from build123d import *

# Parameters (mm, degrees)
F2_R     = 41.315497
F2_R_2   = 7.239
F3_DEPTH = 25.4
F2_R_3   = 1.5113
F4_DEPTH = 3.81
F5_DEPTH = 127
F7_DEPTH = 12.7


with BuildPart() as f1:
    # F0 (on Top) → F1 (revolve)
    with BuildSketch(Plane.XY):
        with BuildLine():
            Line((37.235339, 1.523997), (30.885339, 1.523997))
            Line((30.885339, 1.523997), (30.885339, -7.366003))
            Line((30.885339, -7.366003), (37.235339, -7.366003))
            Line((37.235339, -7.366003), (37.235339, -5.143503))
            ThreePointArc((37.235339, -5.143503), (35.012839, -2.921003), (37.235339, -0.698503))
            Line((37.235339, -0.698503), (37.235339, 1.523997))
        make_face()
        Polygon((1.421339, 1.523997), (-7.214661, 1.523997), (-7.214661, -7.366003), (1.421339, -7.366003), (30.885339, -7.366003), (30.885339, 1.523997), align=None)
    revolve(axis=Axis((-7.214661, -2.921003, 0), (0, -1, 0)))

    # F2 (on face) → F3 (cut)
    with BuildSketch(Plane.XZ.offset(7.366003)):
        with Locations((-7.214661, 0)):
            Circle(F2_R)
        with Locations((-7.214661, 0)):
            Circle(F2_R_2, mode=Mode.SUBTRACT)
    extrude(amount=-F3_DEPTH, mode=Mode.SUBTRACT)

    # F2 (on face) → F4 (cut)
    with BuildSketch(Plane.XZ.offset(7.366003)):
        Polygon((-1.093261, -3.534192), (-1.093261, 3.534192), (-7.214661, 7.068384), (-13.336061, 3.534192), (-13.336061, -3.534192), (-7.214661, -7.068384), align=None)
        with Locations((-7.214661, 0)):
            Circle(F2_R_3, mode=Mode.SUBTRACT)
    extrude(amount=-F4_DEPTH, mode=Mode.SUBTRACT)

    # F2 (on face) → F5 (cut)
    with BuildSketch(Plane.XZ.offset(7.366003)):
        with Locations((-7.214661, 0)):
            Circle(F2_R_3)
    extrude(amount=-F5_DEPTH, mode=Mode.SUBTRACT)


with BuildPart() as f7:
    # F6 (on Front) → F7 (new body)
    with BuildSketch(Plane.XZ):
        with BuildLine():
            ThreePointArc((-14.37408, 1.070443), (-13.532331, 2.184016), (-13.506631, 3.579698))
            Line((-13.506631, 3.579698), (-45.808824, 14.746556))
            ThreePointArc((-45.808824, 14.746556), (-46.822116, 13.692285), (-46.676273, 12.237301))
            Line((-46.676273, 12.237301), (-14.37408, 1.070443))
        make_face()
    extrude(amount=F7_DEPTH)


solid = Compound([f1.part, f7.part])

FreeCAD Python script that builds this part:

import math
import FreeCAD as App
import Part
import Sketcher
from FreeCAD import Vector
Q = App.Units.Quantity


def add_polygon(sketch, points):
    """Adds a closed chain of lines whose ends are joined by coincident constraints."""
    first, n = sketch.GeometryCount, len(points)
    for a, b in zip(points, points[1:] + points[:1]):
        sketch.addGeometry(Part.LineSegment(App.Vector(*a, 0), App.Vector(*b, 0)), False)
    for i in range(n):
        sketch.addConstraint(Sketcher.Constraint("Coincident", first + i, 2, first + (i + 1) % n, 1))

doc = App.newDocument("Part")
body = doc.addObject("PartDesign::Body", "Body")
body.AllowCompound = True

# Sketch on XY plane
sketch1 = body.newObject("Sketcher::SketchObject", "Sketch")
sketch1.AttachmentSupport = (doc.getObject("XY_Plane"), [""])
sketch1.MapMode = "FlatFace"
sketch1.addGeometry([
    Part.LineSegment(Vector(37.2, 1.5, 0), Vector(-7.2, 1.5, 0)),  # 0
    Part.LineSegment(Vector(-7.2, 1.5, 0), Vector(-7.2, -7.4, 0)),  # 1
    Part.LineSegment(Vector(-7.2, -7.4, 0), Vector(37.2, -7.4, 0)),  # 2
    Part.LineSegment(Vector(37.2, -7.4, 0), Vector(37.2, -5.1, 0)),  # 3
    Part.ArcOfCircle(Part.Circle(Vector(37.2, -2.9, 0), Vector(0, 0, 1), 2.2), math.radians(90), math.radians(270)),  # 4
    Part.LineSegment(Vector(37.2, -0.7, 0), Vector(37.2, 1.5, 0)),  # 5
], False)
sketch1.addGeometry(Part.LineSegment(Vector(-7.2, 1.5, 0), Vector(-7.2, -7.4, 0)), True)  # axis
sketch1.addConstraint([
    Sketcher.Constraint("Coincident", 0, 2, 1, 1),
    Sketcher.Constraint("Coincident", 1, 2, 2, 1),
    Sketcher.Constraint("Coincident", 2, 2, 3, 1),
    Sketcher.Constraint("Coincident", 3, 2, 4, 2),
    Sketcher.Constraint("Coincident", 4, 1, 5, 1),
    Sketcher.Constraint("Coincident", 5, 2, 0, 1),
    Sketcher.Constraint("Horizontal", 0),
    Sketcher.Constraint("Vertical", 1),
    Sketcher.Constraint("Horizontal", 2),
    Sketcher.Constraint("Vertical", 3),
    Sketcher.Constraint("Vertical", 5),
    Sketcher.Constraint("Vertical", 6),
    Sketcher.Constraint("Coincident", 6, 1, 0, 2),
    Sketcher.Constraint("Horizontal", 2, 2, 6, 2),
    Sketcher.Constraint("Vertical", 4, 3, 2, 2),
    Sketcher.Constraint("Vertical", 3, 2, 4, 1),
    Sketcher.Constraint("Equal", 3, 5),
    Sketcher.Constraint("DistanceX", 0, 2, 0, 1, Q("1.75 in")),
    Sketcher.Constraint("DistanceY", 1, 2, 1, 1, Q("0.35 in")),
    Sketcher.Constraint("Radius", 4, Q("0.0875 in")),
    Sketcher.Constraint("DistanceY", -1, 1, 0, 2, Q("0.0599999 in")),
    Sketcher.Constraint("DistanceX", -1, 1, 4, 3, Q("37.235339 mm")),
])
revolution = body.newObject("PartDesign::Revolution", "Revolution")
revolution.Profile = sketch1
revolution.ReferenceAxis = (sketch1, ["Axis0"])
revolution.Angle = 360

# Sketch on XZ plane
sketch2 = body.newObject("Sketcher::SketchObject", "Sketch001")
sketch2.AttachmentSupport = (doc.getObject("XZ_Plane"), [""])
sketch2.MapMode = "FlatFace"
sketch2.AttachmentOffset = App.Placement(Vector(0, 0, 0.2900001 * 25.4), App.Rotation())
sketch2.addGeometry([
    Part.Circle(Vector(-7, 0, 0), Vector(0, 0, 1), 41),
    Part.Circle(Vector(-7, 0, 0), Vector(0, 0, 1), 7),
], False)
sketch2.addConstraint([
    Sketcher.Constraint("Coincident", 1, 3, 0, 3),
    Sketcher.Constraint("PointOnObject", 0, 3, -1),
    Sketcher.Constraint("Diameter", 1, Q("0.57 in")),
    Sketcher.Constraint("Diameter", 0, Q("82.630994 mm")),
    Sketcher.Constraint("DistanceX", 0, 3, -1, 1, Q("7.214661 mm")),
])
pocket1 = body.newObject("PartDesign::Pocket", "Pocket")
pocket1.Profile = sketch2
pocket1.Length = Q("1 in")

# Sketch on XZ plane
sketch3 = body.newObject("Sketcher::SketchObject", "Sketch002")
sketch3.AttachmentSupport = (doc.getObject("XZ_Plane"), [""])
sketch3.MapMode = "FlatFace"
sketch3.AttachmentOffset = App.Placement(Vector(0, 0, 0.2900001 * 25.4), App.Rotation())
add_polygon(sketch3, [(-1.1, -3.5), (-1.1, 3.5), (-7.2, 7.1), (-13.3, 3.5), (-13.3, -3.5), (-7.2, -7.1)])  # lines 0-5
sketch3.addGeometry(Part.Circle(Vector(-7.2, 0, 0), Vector(0, 0, 1), 1.5), False)  # 6
sketch3.addConstraint([
    Sketcher.Constraint("Vertical", 0),
    Sketcher.Constraint("Vertical", 3),
    Sketcher.Constraint("Symmetric", 1, 2, 4, 2, -1),
    Sketcher.Constraint("PointOnObject", 6, 3, -1),
    Sketcher.Constraint("Parallel", 1, 4),
    Sketcher.Constraint("Parallel", 2, 5),
    Sketcher.Constraint("Horizontal", 0, 2, 2, 2),
    Sketcher.Constraint("Horizontal", 3, 2, 5, 2),
    Sketcher.Constraint("Vertical", 6, 3, 1, 2),
    Sketcher.Constraint("Diameter", 6, Q("0.119 in")),
    Sketcher.Constraint("Angle", 1, Q("150 deg")),
    Sketcher.Constraint("DistanceX", 6, 3, 0, 2, Q("0.241 in")),
    Sketcher.Constraint("DistanceY", 0, 1, 0, 2, Q("7.068384 mm")),
    Sketcher.Constraint("DistanceX", 6, 3, -1, 1, Q("7.214661 mm")),
])
pocket2 = body.newObject("PartDesign::Pocket", "Pocket001")
pocket2.Profile = sketch3
pocket2.Length = Q("0.15 in")

# Sketch on XZ plane
sketch4 = body.newObject("Sketcher::SketchObject", "Sketch003")
sketch4.AttachmentSupport = (doc.getObject("XZ_Plane"), [""])
sketch4.MapMode = "FlatFace"
sketch4.AttachmentOffset = App.Placement(Vector(0, 0, 0.2900001 * 25.4), App.Rotation())
sketch4.addGeometry(Part.Circle(Vector(-7.2, 0, 0), Vector(0, 0, 1), 1.5), False)
sketch4.addConstraint([
    Sketcher.Constraint("PointOnObject", 0, 3, -1),
    Sketcher.Constraint("Diameter", 0, Q("0.119 in")),
    Sketcher.Constraint("DistanceX", 0, 3, -1, 1, Q("7.214661 mm")),
])
pocket3 = body.newObject("PartDesign::Pocket", "Pocket002")
pocket3.Profile = sketch4
pocket3.Length = Q("5 in")
body2 = doc.addObject("PartDesign::Body", "Body001")

# Sketch on XZ plane
sketch5 = body2.newObject("Sketcher::SketchObject", "Sketch004")
sketch5.AttachmentSupport = (doc.getObject("XZ_Plane001"), [""])
sketch5.MapMode = "FlatFace"
sketch5.addGeometry([
    Part.ArcOfCircle(Part.Circle(Vector(-15.7, 2.9, 0), Vector(0, 0, 1), 2.3), math.radians(-55), math.radians(17)),
    Part.LineSegment(Vector(-13.5, 3.6, 0), Vector(-45.8, 14.7, 0)),
    Part.ArcOfCircle(Part.Circle(Vector(-45.2, 13.1, 0), Vector(0, 0, 1), 1.7), math.radians(111), math.radians(211)),
    Part.LineSegment(Vector(-46.7, 12.2, 0), Vector(-14.4, 1.1, 0)),
], False)
sketch5.addConstraint([
    Sketcher.Constraint("Coincident", 0, 2, 1, 1),
    Sketcher.Constraint("Coincident", 1, 2, 2, 1),
    Sketcher.Constraint("Coincident", 2, 2, 3, 1),
    Sketcher.Constraint("Coincident", 3, 2, 0, 1),
    Sketcher.Constraint("Parallel", 1, 3),
    Sketcher.Constraint("Equal", 1, 3),
    Sketcher.Constraint("Radius", 0, Q("2.256783 mm")),
    Sketcher.Constraint("Radius", 2, Q("1.743454 mm")),
    Sketcher.Constraint("DistanceY", -1, 1, 0, 2, Q("3.579698 mm")),
    Sketcher.Constraint("DistanceY", -1, 1, 2, 2, Q("12.237301 mm")),
    Sketcher.Constraint("DistanceX", 0, 3, -1, 1, Q("15.665259 mm")),
    Sketcher.Constraint("DistanceY", -1, 1, 0, 3, Q("2.921369 mm")),
    Sketcher.Constraint("DistanceY", -1, 1, 2, 3, Q("13.122651 mm")),
    Sketcher.Constraint("Distance", 1, Q("34.177923 mm")),
])
pad1 = body2.newObject("PartDesign::Pad", "Pad")
pad1.Profile = sketch5
pad1.Length = Q("0.5 in")

doc.recompute()
